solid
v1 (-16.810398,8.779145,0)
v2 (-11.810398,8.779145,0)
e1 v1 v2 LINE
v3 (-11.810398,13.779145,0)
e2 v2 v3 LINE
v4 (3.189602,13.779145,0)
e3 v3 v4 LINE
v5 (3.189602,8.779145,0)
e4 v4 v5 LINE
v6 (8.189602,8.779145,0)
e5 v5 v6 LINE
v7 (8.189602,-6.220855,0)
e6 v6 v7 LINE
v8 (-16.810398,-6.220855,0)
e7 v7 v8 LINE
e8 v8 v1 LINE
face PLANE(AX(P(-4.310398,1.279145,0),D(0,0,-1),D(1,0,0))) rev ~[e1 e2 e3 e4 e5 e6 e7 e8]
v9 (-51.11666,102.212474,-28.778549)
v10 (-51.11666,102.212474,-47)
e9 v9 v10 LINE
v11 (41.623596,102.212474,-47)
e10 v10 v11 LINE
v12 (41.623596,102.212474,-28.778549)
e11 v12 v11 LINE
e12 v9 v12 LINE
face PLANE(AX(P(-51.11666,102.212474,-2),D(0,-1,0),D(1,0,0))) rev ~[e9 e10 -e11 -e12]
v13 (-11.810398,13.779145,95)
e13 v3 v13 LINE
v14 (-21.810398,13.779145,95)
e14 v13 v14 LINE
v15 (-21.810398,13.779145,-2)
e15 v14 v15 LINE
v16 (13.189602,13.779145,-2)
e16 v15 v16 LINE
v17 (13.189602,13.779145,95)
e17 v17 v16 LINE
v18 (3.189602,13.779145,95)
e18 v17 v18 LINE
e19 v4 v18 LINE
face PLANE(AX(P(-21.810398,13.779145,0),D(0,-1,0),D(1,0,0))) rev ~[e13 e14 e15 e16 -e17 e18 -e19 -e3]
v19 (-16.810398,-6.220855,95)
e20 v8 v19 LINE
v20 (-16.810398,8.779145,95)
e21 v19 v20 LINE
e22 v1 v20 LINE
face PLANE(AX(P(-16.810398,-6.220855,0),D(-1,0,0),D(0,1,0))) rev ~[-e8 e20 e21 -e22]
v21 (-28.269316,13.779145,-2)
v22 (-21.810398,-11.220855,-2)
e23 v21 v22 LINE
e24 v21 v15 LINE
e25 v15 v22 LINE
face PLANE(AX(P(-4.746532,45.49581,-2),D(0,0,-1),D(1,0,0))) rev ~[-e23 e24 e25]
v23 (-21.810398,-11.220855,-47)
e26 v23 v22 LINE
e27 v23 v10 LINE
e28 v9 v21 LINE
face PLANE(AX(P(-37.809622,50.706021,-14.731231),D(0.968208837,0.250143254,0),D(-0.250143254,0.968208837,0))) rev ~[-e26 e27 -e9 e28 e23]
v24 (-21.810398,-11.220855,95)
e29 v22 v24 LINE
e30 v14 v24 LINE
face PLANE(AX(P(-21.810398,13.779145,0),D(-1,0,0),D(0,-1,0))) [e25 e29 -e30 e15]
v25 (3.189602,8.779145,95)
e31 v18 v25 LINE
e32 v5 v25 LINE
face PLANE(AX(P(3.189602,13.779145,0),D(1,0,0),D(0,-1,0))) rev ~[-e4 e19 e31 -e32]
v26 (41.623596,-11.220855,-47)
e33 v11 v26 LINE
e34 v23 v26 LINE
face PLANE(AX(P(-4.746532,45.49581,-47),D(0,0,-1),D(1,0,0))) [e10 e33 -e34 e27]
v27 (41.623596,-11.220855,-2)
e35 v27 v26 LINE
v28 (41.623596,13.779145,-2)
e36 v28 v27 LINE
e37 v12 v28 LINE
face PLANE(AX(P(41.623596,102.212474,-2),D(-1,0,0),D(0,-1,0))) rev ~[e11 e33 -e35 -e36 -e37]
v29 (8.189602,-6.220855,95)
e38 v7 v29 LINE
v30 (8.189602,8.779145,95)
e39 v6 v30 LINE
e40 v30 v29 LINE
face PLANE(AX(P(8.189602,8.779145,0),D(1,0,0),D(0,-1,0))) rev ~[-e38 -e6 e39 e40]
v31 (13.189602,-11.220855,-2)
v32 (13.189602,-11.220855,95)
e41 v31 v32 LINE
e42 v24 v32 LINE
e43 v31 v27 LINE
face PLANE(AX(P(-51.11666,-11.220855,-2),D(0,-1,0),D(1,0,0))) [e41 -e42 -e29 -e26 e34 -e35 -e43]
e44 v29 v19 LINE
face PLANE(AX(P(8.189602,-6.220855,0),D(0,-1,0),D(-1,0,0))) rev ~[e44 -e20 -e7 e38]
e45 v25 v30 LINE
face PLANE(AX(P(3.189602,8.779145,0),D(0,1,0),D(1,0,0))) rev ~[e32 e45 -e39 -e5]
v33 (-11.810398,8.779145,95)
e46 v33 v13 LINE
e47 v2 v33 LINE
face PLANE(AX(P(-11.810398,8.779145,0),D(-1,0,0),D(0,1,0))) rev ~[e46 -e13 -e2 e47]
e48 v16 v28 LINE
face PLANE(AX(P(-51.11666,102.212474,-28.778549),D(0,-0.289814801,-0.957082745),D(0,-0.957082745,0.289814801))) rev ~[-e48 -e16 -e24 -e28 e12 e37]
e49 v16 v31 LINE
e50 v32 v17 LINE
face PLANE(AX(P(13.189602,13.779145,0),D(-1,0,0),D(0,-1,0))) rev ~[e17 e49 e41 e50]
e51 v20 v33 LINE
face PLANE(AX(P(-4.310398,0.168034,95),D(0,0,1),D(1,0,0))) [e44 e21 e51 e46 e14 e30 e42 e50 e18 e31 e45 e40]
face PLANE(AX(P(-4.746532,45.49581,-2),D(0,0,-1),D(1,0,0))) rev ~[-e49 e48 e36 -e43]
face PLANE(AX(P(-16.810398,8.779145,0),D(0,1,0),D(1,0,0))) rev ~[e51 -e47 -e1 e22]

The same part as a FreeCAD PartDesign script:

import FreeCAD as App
import Part
import Sketcher

V = App.Vector

doc = App.newDocument("Part")
params = doc.addObject("Spreadsheet::Sheet", "Params")
for row, (alias, value) in enumerate([
    ("sketch1_width", "35 mm"),
    ("sketch1_width2", "10 mm"),
    ("sketch1_width3", "5 mm"),
    ("sketch1_height", "15 mm"),
    ("pad1_length", "95 mm"),
    ("sketch2_width", "35 mm"),
    ("sketch2_height", "25 mm"),
    ("pad2_length", "2 mm"),
    ("pad3_length", "45 mm"),
    ("pocket2_length", "47.8 mm"),
], start=1):
    params.set(f"A{row}", alias)
    params.set(f"B{row}", "=" + value)
    params.setAlias(f"B{row}", alias)

body = doc.addObject("PartDesign::Body", "Body")

sketch1 = doc.addObject("Sketcher::SketchObject", "Sketch")
body.addObject(sketch1)
sketch1.AttachmentSupport = (doc.XY_Plane, [""])
sketch1.MapMode = "FlatFace"
sketch1.addGeometry(Part.LineSegment(V(-21.8, -11.2, 0), V(13.2, -11.2, 0)), False)
sketch1.addGeometry(Part.LineSegment(V(13.2, -11.2, 0), V(13.2, 13.8, 0)), False)
sketch1.addGeometry(Part.LineSegment(V(13.2, 13.8, 0), V(3.2, 13.8, 0)), False)
sketch1.addGeometry(Part.LineSegment(V(3.2, 13.8, 0), V(3.2, 8.8, 0)), False)
sketch1.addGeometry(Part.LineSegment(V(3.2, 8.8, 0), V(8.2, 8.8, 0)), False)
sketch1.addGeometry(Part.LineSegment(V(8.2, 8.8, 0), V(8.2, -6.2, 0)), False)
sketch1.addGeometry(Part.LineSegment(V(8.2, -6.2, 0), V(-16.8, -6.2, 0)), False)
sketch1.addGeometry(Part.LineSegment(V(-16.8, -6.2, 0), V(-16.8, 8.8, 0)), False)
sketch1.addGeometry(Part.LineSegment(V(-16.8, 8.8, 0), V(-11.8, 8.8, 0)), False)
sketch1.addGeometry(Part.LineSegment(V(-11.8, 8.8, 0), V(-11.8, 13.8, 0)), False)
sketch1.addGeometry(Part.LineSegment(V(-11.8, 13.8, 0), V(-21.8, 13.8, 0)), False)
sketch1.addGeometry(Part.LineSegment(V(-21.8, 13.8, 0), V(-21.8, -11.2, 0)), False)
sketch1.addConstraint(Sketcher.Constraint("Coincident", 0, 2, 1, 1))
sketch1.addConstraint(Sketcher.Constraint("Coincident", 1, 2, 2, 1))
sketch1.addConstraint(Sketcher.Constraint("Coincident", 2, 2, 3, 1))
sketch1.addConstraint(Sketcher.Constraint("Coincident", 3, 2, 4, 1))
sketch1.addConstraint(Sketcher.Constraint("Coincident", 4, 2, 5, 1))
sketch1.addConstraint(Sketcher.Constraint("Coincident", 5, 2, 6, 1))
sketch1.addConstraint(Sketcher.Constraint("Coincident", 6, 2, 7, 1))
sketch1.addConstraint(Sketcher.Constraint("Coincident", 7, 2, 8, 1))
sketch1.addConstraint(Sketcher.Constraint("Coincident", 8, 2, 9, 1))
sketch1.addConstraint(Sketcher.Constraint("Coincident", 9, 2, 10, 1))
sketch1.addConstraint(Sketcher.Constraint("Coincident", 10, 2, 11, 1))
sketch1.addConstraint(Sketcher.Constraint("Coincident", 11, 2, 0, 1))
sketch1.addConstraint(Sketcher.Constraint("Horizontal", 0))
sketch1.addConstraint(Sketcher.Constraint("Vertical", 1))
sketch1.addConstraint(Sketcher.Constraint("Horizontal", 2))
sketch1.addConstraint(Sketcher.Constraint("Vertical", 3))
sketch1.addConstraint(Sketcher.Constraint("Horizontal", 4))
sketch1.addConstraint(Sketcher.Constraint("Vertical", 5))
sketch1.addConstraint(Sketcher.Constraint("Horizontal", 6))
sketch1.addConstraint(Sketcher.Constraint("Vertical", 7))
sketch1.addConstraint(Sketcher.Constraint("Horizontal", 8))
sketch1.addConstraint(Sketcher.Constraint("Vertical", 9))
sketch1.addConstraint(Sketcher.Constraint("Horizontal", 10))
sketch1.addConstraint(Sketcher.Constraint("Vertical", 11))
sketch1.addConstraint(Sketcher.Constraint("Horizontal", 4, 2, 7, 2))
sketch1.addConstraint(Sketcher.Constraint("Horizontal", 2, 2, 9, 2))
sketch1.addConstraint(Sketcher.Constraint("Equal", 4, 8))
sketch1.addConstraint(Sketcher.Constraint("Equal", 2, 10))
sketch1.addConstraint(Sketcher.Constraint("Equal", 6, 1))
sketch1.addConstraint(Sketcher.Constraint("Equal", 8, 3))
sketch1.addConstraint(Sketcher.Constraint("DistanceX", 0, 1, 0, 2, 35.0))
sketch1.addConstraint(Sketcher.Constraint("DistanceX", 2, 2, 2, 1, 10.0))
sketch1.addConstraint(Sketcher.Constraint("DistanceX", 4, 1, 4, 2, 5.0))
sketch1.addConstraint(Sketcher.Constraint("DistanceY", 5, 2, 5, 1, 15.0))
sketch1.addConstraint(Sketcher.Constraint("DistanceX", -1, 1, 0, 2, 13.189602))
sketch1.addConstraint(Sketcher.Constraint("DistanceY", 0, 2, -1, 1, 11.220855))
sketch1.setExpression("Constraints[30]", "Params.sketch1_width")
sketch1.setExpression("Constraints[31]", "Params.sketch1_width2")
sketch1.setExpression("Constraints[32]", "Params.sketch1_width3")
sketch1.setExpression("Constraints[33]", "Params.sketch1_height")
pad1 = doc.addObject("PartDesign::Pad", "Pad")
body.addObject(pad1)
pad1.Profile = sketch1
pad1.setExpression("Length", "Params.pad1_length")

sketch2 = doc.addObject("Sketcher::SketchObject", "Sketch001")
body.addObject(sketch2)
sketch2.AttachmentSupport = (doc.XY_Plane, [""])
sketch2.MapMode = "FlatFace"
sketch2.addGeometry(Part.LineSegment(V(-22, -11, 0), V(-22, 14, 0)), False)
sketch2.addGeometry(Part.LineSegment(V(-22, 14, 0), V(13, 14, 0)), False)
sketch2.addGeometry(Part.LineSegment(V(13, 14, 0), V(13, -11, 0)), False)
sketch2.addGeometry(Part.LineSegment(V(13, -11, 0), V(-22, -11, 0)), False)
sketch2.addConstraint(Sketcher.Constraint("Coincident", 0, 2, 1, 1))
sketch2.addConstraint(Sketcher.Constraint("Coincident", 1, 2, 2, 1))
sketch2.addConstraint(Sketcher.Constraint("Coincident", 2, 2, 3, 1))
sketch2.addConstraint(Sketcher.Constraint("Coincident", 3, 2, 0, 1))
sketch2.addConstraint(Sketcher.Constraint("Vertical", 0))
sketch2.addConstraint(Sketcher.Constraint("Horizontal", 1))
sketch2.addConstraint(Sketcher.Constraint("Vertical", 2))
sketch2.addConstraint(Sketcher.Constraint("Horizontal", 3))
sketch2.addConstraint(Sketcher.Constraint("DistanceX", 1, 1, 1, 2, 35.0))
sketch2.addConstraint(Sketcher.Constraint("DistanceY", 0, 1, 0, 2, 25.0))
sketch2.addConstraint(Sketcher.Constraint("DistanceX", 0, 2, -1, 1, 21.810398))
sketch2.addConstraint(Sketcher.Constraint("DistanceY", -1, 1, 0, 2, 13.779145))
sketch2.setExpression("Constraints[8]", "Params.sketch2_width")
sketch2.setExpression("Constraints[9]", "Params.sketch2_height")
pad2 = doc.addObject("PartDesign::Pad", "Pad001")
body.addObject(pad2)
pad2.Profile = sketch2
pad2.setExpression("Length", "Params.pad2_length")
pad2.Reversed = True

sketch3 = doc.addObject("Sketcher::SketchObject", "Sketch002")
body.addObject(sketch3)
sketch3.AttachmentSupport = (doc.XY_Plane, [""])
sketch3.MapMode = "FlatFace"
sketch3.AttachmentOffset = App.Placement(V(0, 0, -2), App.Rotation())
sketch3.addGeometry(Part.LineSegment(V(-51, -11, 0), V(-51, 102, 0)), False)
sketch3.addGeometry(Part.LineSegment(V(-51, 102, 0), V(42, 102, 0)), False)
sketch3.addGeometry(Part.LineSegment(V(42, 102, 0), V(42, -11, 0)), False)
sketch3.addGeometry(Part.LineSegment(V(42, -11, 0), V(-51, -11, 0)), False)
sketch3.addConstraint(Sketcher.Constraint("Coincident", 0, 2, 1, 1))
sketch3.addConstraint(Sketcher.Constraint("Coincident", 1, 2, 2, 1))
sketch3.addConstraint(Sketcher.Constraint("Coincident", 2, 2, 3, 1))
sketch3.addConstraint(Sketcher.Constraint("Coincident", 3, 2, 0, 1))
sketch3.addConstraint(Sketcher.Constraint("Vertical", 0))
sketch3.addConstraint(Sketcher.Constraint("Horizontal", 1))
sketch3.addConstraint(Sketcher.Constraint("Vertical", 2))
sketch3.addConstraint(Sketcher.Constraint("Horizontal", 3))
sketch3.addConstraint(Sketcher.Constraint("DistanceY", 0, 1, 0, 2, 113.433328))
sketch3.addConstraint(Sketcher.Constraint("DistanceX", 1, 1, 1, 2, 92.740256))
sketch3.addConstraint(Sketcher.Constraint("DistanceX", 0, 2, -1, 1, 51.11666))
sketch3.addConstraint(Sketcher.Constraint("DistanceY", -1, 1, 0, 2, 102.212474))
pad3 = doc.addObject("PartDesign::Pad", "Pad002")
body.addObject(pad3)
pad3.Profile = sketch3
pad3.setExpression("Length", "Params.pad3_length")
pad3.Reversed = True

sketch4 = doc.addObject("Sketcher::SketchObject", "Sketch003")
body.addObject(sketch4)
sketch4.AttachmentSupport = (doc.YZ_Plane, [""])
sketch4.MapMode = "FlatFace"
sketch4.AttachmentOffset = App.Placement(V(0, 0, -51.11666), App.Rotation())
sketch4.addGeometry(Part.LineSegment(V(102, -29, 0), V(14, -2, 0)), False)
sketch4.addGeometry(Part.LineSegment(V(14, -2, 0), V(102, -2, 0)), False)
sketch4.addGeometry(Part.LineSegment(V(102, -2, 0), V(102, -29, 0)), False)
sketch4.addConstraint(Sketcher.Constraint("Coincident", 0, 2, 1, 1))
sketch4.addConstraint(Sketcher.Constraint("Coincident", 1, 2, 2, 1))
sketch4.addConstraint(Sketcher.Constraint("Coincident", 2, 2, 0, 1))
sketch4.addConstraint(Sketcher.Constraint("Horizontal", 1))
sketch4.addConstraint(Sketcher.Constraint("Vertical", 2))
sketch4.addConstraint(Sketcher.Constraint("DistanceY", 0, 2, -1, 1, 2.0))
sketch4.addConstraint(Sketcher.Constraint("DistanceX", 1, 1, 1, 2, 88.433328))
sketch4.addConstraint(Sketcher.Constraint("DistanceY", 2, 2, 2, 1, 26.778549))
sketch4.addConstraint(Sketcher.Constraint("DistanceX", -1, 1, 0, 2, 13.779145))
pocket1 = doc.addObject("PartDesign::Pocket", "Pocket")
body.addObject(pocket1)
pocket1.Profile = sketch4
pocket1.Type = "ThroughAll"
pocket1.Reversed = True

sketch5 = doc.addObject("Sketcher::SketchObject", "Sketch004")
body.addObject(sketch5)
sketch5.Placement = App.Placement(V(-23.163275, -5.984388, 0), App.Rotation(V(-0.250143254, 0.968208837, 0), V(0, 0, 1), V(0.968208837, 0.250143254, 0), "ZXY"))
sketch5.addGeometry(Part.LineSegment(V(112, 32, 0), V(-5, -2, 0)), False)
sketch5.addGeometry(Part.LineSegment(V(-5, -2, 0), V(-6, -47, 0)), False)
sketch5.addGeometry(Part.LineSegment(V(-6, -47, 0), V(112, -47, 0)), False)
sketch5.addGeometry(Part.LineSegment(V(112, -47, 0), V(112, 32, 0)), False)
sketch5.addConstraint(Sketcher.Constraint("Coincident", 0, 2, 1, 1))
sketch5.addConstraint(Sketcher.Constraint("Coincident", 1, 2, 2, 1))
sketch5.addConstraint(Sketcher.Constraint("Coincident", 2, 2, 3, 1))
sketch5.addConstraint(Sketcher.Constraint("Coincident", 3, 2, 0, 1))
sketch5.addConstraint(Sketcher.Constraint("Horizontal", 2))
sketch5.addConstraint(Sketcher.Constraint("Vertical", 3))
sketch5.addConstraint(Sketcher.Constraint("DistanceY", 0, 2, -1, 1, 2.0))
sketch5.addConstraint(Sketcher.Constraint("DistanceY", 1, 2, -1, 1, 47.0))
sketch5.addConstraint(Sketcher.Constraint("DistanceY", 3, 1, 3, 2, 79.368518))
sketch5.addConstraint(Sketcher.Constraint("Distance", 0, 122.09493))
sketch5.addConstraint(Sketcher.Constraint("DistanceX", 2, 1, 2, 2, 117.805737))
sketch5.addConstraint(Sketcher.Constraint("DistanceX", 1, 2, -1, 1, 6.056229))
pocket2 = doc.addObject("PartDesign::Pocket", "Pocket001")
body.addObject(pocket2)
pocket2.Profile = sketch5
pocket2.setExpression("Length", "Params.pocket2_length")

doc.recompute()
